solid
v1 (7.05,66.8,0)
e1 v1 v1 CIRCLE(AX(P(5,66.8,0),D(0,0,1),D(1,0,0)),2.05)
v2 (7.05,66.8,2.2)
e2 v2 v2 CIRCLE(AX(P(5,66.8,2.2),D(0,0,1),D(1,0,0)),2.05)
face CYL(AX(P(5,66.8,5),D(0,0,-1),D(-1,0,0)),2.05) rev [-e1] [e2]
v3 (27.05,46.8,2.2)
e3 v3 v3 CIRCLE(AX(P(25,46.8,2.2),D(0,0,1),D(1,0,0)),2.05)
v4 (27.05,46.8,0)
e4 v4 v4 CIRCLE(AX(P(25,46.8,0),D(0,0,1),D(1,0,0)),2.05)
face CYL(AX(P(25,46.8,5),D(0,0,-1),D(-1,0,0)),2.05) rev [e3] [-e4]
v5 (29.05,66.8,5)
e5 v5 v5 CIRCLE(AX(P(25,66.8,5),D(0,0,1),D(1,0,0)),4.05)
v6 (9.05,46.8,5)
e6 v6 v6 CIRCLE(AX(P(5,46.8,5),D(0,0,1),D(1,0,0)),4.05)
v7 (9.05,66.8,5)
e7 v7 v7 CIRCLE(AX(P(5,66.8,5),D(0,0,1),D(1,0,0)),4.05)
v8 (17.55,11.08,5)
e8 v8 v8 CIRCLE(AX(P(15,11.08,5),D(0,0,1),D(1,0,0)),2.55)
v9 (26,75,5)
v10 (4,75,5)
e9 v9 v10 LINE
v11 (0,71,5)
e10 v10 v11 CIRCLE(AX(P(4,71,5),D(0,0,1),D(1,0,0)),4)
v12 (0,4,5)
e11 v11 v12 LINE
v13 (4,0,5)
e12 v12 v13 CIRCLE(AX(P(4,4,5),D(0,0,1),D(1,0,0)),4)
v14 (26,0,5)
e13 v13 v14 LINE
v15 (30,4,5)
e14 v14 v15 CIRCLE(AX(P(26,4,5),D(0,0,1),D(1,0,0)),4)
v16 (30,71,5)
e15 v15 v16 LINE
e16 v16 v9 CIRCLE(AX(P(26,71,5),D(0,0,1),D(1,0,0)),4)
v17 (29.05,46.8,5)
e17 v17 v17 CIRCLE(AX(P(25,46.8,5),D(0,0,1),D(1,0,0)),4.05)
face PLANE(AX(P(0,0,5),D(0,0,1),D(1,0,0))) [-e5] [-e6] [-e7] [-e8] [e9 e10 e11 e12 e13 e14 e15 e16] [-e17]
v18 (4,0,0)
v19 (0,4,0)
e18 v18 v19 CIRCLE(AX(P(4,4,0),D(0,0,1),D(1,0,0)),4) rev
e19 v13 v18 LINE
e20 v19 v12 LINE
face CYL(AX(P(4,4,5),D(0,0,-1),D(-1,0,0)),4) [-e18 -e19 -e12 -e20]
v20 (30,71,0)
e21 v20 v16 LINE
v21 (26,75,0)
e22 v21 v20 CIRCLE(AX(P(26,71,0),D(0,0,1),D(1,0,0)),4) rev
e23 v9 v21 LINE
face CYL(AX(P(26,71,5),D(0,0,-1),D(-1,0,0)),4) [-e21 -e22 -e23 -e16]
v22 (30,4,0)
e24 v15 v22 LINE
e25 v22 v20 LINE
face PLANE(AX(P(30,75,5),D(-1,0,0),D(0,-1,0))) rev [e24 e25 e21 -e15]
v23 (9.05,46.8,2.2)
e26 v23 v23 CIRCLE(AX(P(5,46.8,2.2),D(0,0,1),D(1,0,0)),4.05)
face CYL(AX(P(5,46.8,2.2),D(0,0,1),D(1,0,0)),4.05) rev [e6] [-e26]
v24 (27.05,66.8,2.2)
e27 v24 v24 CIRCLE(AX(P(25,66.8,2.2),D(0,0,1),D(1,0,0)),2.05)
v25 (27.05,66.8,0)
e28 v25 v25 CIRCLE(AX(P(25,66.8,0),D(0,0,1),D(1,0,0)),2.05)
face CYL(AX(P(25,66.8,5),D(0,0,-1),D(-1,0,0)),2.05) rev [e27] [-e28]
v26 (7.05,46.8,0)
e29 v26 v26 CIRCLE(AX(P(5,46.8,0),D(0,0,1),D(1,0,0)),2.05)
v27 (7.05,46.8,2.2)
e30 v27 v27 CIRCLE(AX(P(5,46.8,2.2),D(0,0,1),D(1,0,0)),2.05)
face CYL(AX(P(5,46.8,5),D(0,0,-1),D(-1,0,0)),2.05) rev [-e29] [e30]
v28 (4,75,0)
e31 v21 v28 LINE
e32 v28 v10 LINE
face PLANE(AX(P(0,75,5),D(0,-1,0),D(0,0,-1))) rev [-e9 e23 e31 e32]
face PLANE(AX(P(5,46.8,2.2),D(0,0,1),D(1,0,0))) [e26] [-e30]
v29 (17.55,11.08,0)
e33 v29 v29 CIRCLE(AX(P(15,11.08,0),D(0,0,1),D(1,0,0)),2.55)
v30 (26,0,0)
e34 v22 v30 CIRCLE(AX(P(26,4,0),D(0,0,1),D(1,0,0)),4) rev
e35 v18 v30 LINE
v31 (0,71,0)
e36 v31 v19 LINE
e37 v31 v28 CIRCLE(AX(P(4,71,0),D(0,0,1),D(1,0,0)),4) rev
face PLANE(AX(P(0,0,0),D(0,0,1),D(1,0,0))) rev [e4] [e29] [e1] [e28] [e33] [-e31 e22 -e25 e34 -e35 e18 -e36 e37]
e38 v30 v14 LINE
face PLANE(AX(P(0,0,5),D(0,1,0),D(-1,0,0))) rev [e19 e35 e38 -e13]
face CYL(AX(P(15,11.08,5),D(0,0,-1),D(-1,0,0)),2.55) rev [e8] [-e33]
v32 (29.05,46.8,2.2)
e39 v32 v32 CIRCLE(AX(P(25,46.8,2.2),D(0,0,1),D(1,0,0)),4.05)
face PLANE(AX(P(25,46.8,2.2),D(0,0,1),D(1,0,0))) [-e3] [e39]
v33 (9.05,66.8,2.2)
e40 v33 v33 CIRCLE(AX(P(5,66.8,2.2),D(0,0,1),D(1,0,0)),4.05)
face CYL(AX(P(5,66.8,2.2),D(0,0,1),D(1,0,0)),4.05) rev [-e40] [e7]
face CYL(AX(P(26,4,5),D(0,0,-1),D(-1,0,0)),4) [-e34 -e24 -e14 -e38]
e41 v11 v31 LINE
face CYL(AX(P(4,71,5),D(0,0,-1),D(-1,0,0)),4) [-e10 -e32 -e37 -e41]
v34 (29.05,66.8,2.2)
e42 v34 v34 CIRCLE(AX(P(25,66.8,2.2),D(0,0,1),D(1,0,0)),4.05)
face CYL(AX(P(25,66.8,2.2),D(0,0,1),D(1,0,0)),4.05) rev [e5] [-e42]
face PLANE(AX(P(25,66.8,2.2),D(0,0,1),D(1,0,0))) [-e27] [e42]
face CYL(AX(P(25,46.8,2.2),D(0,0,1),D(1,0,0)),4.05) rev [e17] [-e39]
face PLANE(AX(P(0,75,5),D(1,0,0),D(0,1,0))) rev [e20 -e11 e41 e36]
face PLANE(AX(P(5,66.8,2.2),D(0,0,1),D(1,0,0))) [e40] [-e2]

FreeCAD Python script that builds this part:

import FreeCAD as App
import Part
import Sketcher

V = App.Vector
Q = App.Units.Quantity


def edges_at(feature, points):
    """Names of the edges that pass closest to the given points."""
    edges = feature.Shape.Edges
    near = lambda p: min(range(len(edges)), key=lambda i: edges[i].distToShape(Part.Vertex(*p))[0])
    return sorted({f"Edge{near(p) + 1}" for p in points})


def add_polygon(sketch, points):
    """Adds a closed chain of lines whose ends are joined by coincident constraints."""
    first, n = sketch.GeometryCount, len(points)
    for a, b in zip(points, points[1:] + points[:1]):
        sketch.addGeometry(Part.LineSegment(App.Vector(*a, 0), App.Vector(*b, 0)), False)
    for i in range(n):
        sketch.addConstraint(Sketcher.Constraint("Coincident", first + i, 2, first + (i + 1) % n, 1))

doc = App.newDocument("Part")
body = doc.addObject("PartDesign::Body", "Body")

# Sketch on XY plane
sketch1 = body.newObject("Sketcher::SketchObject", "Sketch")
sketch1.AttachmentSupport = (doc.getObject("XY_Plane"), [""])
sketch1.MapMode = "FlatFace"
add_polygon(sketch1, [(0, 75), (0, 0), (30, 0), (30, 75)])  # lines 0-3
sketch1.addGeometry(Part.Circle(V(15, 11.08, 0), V(0, 0, 1), 2.55), False)  # 4
sketch1.addGeometry(Part.Circle(V(5, 46.8, 0), V(0, 0, 1), 2.05), False)  # 5
sketch1.addGeometry(Part.Circle(V(5, 66.8, 0), V(0, 0, 1), 2.05), False)  # 6
sketch1.addGeometry(Part.Circle(V(25, 46.8, 0), V(0, 0, 1), 2.05), False)  # 7
sketch1.addGeometry(Part.Circle(V(25, 66.8, 0), V(0, 0, 1), 2.05), False)  # 8
sketch1.addConstraint([
    Sketcher.Constraint("Vertical", 0),
    Sketcher.Constraint("Horizontal", 1),
    Sketcher.Constraint("Vertical", 2),
    Sketcher.Constraint("Horizontal", 3),
    Sketcher.Constraint("Coincident", 0, 2, -1, 1),
    Sketcher.Constraint("Equal", 5, 6),
    Sketcher.Constraint("Equal", 6, 7),
    Sketcher.Constraint("Equal", 7, 8),
    Sketcher.Constraint("Horizontal", 5, 3, 7, 3),
    Sketcher.Constraint("Horizontal", 6, 3, 8, 3),
    Sketcher.Constraint("Vertical", 5, 3, 6, 3),
    Sketcher.Constraint("Vertical", 7, 3, 8, 3),
    Sketcher.Constraint("Diameter", 4, Q("5.1 mm")),
    Sketcher.Constraint("Diameter", 5, Q("4.1 mm")),
    Sketcher.Constraint("DistanceX", 1, 1, 1, 2, Q("30 mm")),
    Sketcher.Constraint("DistanceY", 0, 2, 0, 1, Q("75 mm")),
    Sketcher.Constraint("DistanceX", -1, 1, 4, 3, Q("15 mm")),
    Sketcher.Constraint("DistanceX", -1, 1, 5, 3, Q("5 mm")),
    Sketcher.Constraint("DistanceX", -1, 1, 7, 3, Q("25 mm")),
    Sketcher.Constraint("DistanceY", 5, 3, 6, 3, Q("20 mm")),
    Sketcher.Constraint("DistanceY", -1, 1, 5, 3, Q("46.8 mm")),
    Sketcher.Constraint("DistanceY", -1, 1, 4, 3, Q("11.08 mm")),
])
pad1 = body.newObject("PartDesign::Pad", "Pad")
pad1.Profile = sketch1
pad1.Length = 5
doc.recompute()

fillet = body.newObject("PartDesign::Fillet", "Fillet")
fillet.Base = (pad1, edges_at(pad1, [
    (0, 75, 2.5),
    (30, 75, 2.5),
    (30, 0, 2.5),
    (0, 0, 2.5),
]))
fillet.Radius = 4

# Sketch on XY plane
sketch2 = body.newObject("Sketcher::SketchObject", "Sketch001")
sketch2.AttachmentSupport = (doc.getObject("XY_Plane"), [""])
sketch2.MapMode = "FlatFace"
sketch2.AttachmentOffset = App.Placement(V(0, 0, 5), App.Rotation())
sketch2.addGeometry([
    Part.Circle(V(5, 66.8, 0), V(0, 0, 1), 4.05),
    Part.Circle(V(5, 46.8, 0), V(0, 0, 1), 4.05),
    Part.Circle(V(25, 46.8, 0), V(0, 0, 1), 4.05),
    Part.Circle(V(25, 66.8, 0), V(0, 0, 1), 4.05),
], False)
sketch2.addConstraint([
    Sketcher.Constraint("Equal", 0, 1),
    Sketcher.Constraint("Equal", 1, 2),
    Sketcher.Constraint("Equal", 2, 3),
    Sketcher.Constraint("Horizontal", 1, 3, 2, 3),
    Sketcher.Constraint("Horizontal", 0, 3, 3, 3),
    Sketcher.Constraint("Vertical", 0, 3, 1, 3),
    Sketcher.Constraint("Vertical", 2, 3, 3, 3),
    Sketcher.Constraint("Diameter", 0, Q("8.1 mm")),
    Sketcher.Constraint("DistanceX", -1, 1, 0, 3, Q("5 mm")),
    Sketcher.Constraint("DistanceX", -1, 1, 2, 3, Q("25 mm")),
    Sketcher.Constraint("DistanceY", 1, 3, 0, 3, Q("20 mm")),
    Sketcher.Constraint("DistanceY", -1, 1, 0, 3, Q("66.8 mm")),
])
pocket1 = body.newObject("PartDesign::Pocket", "Pocket")
pocket1.Profile = sketch2
pocket1.Length = 2.8

doc.recompute()
